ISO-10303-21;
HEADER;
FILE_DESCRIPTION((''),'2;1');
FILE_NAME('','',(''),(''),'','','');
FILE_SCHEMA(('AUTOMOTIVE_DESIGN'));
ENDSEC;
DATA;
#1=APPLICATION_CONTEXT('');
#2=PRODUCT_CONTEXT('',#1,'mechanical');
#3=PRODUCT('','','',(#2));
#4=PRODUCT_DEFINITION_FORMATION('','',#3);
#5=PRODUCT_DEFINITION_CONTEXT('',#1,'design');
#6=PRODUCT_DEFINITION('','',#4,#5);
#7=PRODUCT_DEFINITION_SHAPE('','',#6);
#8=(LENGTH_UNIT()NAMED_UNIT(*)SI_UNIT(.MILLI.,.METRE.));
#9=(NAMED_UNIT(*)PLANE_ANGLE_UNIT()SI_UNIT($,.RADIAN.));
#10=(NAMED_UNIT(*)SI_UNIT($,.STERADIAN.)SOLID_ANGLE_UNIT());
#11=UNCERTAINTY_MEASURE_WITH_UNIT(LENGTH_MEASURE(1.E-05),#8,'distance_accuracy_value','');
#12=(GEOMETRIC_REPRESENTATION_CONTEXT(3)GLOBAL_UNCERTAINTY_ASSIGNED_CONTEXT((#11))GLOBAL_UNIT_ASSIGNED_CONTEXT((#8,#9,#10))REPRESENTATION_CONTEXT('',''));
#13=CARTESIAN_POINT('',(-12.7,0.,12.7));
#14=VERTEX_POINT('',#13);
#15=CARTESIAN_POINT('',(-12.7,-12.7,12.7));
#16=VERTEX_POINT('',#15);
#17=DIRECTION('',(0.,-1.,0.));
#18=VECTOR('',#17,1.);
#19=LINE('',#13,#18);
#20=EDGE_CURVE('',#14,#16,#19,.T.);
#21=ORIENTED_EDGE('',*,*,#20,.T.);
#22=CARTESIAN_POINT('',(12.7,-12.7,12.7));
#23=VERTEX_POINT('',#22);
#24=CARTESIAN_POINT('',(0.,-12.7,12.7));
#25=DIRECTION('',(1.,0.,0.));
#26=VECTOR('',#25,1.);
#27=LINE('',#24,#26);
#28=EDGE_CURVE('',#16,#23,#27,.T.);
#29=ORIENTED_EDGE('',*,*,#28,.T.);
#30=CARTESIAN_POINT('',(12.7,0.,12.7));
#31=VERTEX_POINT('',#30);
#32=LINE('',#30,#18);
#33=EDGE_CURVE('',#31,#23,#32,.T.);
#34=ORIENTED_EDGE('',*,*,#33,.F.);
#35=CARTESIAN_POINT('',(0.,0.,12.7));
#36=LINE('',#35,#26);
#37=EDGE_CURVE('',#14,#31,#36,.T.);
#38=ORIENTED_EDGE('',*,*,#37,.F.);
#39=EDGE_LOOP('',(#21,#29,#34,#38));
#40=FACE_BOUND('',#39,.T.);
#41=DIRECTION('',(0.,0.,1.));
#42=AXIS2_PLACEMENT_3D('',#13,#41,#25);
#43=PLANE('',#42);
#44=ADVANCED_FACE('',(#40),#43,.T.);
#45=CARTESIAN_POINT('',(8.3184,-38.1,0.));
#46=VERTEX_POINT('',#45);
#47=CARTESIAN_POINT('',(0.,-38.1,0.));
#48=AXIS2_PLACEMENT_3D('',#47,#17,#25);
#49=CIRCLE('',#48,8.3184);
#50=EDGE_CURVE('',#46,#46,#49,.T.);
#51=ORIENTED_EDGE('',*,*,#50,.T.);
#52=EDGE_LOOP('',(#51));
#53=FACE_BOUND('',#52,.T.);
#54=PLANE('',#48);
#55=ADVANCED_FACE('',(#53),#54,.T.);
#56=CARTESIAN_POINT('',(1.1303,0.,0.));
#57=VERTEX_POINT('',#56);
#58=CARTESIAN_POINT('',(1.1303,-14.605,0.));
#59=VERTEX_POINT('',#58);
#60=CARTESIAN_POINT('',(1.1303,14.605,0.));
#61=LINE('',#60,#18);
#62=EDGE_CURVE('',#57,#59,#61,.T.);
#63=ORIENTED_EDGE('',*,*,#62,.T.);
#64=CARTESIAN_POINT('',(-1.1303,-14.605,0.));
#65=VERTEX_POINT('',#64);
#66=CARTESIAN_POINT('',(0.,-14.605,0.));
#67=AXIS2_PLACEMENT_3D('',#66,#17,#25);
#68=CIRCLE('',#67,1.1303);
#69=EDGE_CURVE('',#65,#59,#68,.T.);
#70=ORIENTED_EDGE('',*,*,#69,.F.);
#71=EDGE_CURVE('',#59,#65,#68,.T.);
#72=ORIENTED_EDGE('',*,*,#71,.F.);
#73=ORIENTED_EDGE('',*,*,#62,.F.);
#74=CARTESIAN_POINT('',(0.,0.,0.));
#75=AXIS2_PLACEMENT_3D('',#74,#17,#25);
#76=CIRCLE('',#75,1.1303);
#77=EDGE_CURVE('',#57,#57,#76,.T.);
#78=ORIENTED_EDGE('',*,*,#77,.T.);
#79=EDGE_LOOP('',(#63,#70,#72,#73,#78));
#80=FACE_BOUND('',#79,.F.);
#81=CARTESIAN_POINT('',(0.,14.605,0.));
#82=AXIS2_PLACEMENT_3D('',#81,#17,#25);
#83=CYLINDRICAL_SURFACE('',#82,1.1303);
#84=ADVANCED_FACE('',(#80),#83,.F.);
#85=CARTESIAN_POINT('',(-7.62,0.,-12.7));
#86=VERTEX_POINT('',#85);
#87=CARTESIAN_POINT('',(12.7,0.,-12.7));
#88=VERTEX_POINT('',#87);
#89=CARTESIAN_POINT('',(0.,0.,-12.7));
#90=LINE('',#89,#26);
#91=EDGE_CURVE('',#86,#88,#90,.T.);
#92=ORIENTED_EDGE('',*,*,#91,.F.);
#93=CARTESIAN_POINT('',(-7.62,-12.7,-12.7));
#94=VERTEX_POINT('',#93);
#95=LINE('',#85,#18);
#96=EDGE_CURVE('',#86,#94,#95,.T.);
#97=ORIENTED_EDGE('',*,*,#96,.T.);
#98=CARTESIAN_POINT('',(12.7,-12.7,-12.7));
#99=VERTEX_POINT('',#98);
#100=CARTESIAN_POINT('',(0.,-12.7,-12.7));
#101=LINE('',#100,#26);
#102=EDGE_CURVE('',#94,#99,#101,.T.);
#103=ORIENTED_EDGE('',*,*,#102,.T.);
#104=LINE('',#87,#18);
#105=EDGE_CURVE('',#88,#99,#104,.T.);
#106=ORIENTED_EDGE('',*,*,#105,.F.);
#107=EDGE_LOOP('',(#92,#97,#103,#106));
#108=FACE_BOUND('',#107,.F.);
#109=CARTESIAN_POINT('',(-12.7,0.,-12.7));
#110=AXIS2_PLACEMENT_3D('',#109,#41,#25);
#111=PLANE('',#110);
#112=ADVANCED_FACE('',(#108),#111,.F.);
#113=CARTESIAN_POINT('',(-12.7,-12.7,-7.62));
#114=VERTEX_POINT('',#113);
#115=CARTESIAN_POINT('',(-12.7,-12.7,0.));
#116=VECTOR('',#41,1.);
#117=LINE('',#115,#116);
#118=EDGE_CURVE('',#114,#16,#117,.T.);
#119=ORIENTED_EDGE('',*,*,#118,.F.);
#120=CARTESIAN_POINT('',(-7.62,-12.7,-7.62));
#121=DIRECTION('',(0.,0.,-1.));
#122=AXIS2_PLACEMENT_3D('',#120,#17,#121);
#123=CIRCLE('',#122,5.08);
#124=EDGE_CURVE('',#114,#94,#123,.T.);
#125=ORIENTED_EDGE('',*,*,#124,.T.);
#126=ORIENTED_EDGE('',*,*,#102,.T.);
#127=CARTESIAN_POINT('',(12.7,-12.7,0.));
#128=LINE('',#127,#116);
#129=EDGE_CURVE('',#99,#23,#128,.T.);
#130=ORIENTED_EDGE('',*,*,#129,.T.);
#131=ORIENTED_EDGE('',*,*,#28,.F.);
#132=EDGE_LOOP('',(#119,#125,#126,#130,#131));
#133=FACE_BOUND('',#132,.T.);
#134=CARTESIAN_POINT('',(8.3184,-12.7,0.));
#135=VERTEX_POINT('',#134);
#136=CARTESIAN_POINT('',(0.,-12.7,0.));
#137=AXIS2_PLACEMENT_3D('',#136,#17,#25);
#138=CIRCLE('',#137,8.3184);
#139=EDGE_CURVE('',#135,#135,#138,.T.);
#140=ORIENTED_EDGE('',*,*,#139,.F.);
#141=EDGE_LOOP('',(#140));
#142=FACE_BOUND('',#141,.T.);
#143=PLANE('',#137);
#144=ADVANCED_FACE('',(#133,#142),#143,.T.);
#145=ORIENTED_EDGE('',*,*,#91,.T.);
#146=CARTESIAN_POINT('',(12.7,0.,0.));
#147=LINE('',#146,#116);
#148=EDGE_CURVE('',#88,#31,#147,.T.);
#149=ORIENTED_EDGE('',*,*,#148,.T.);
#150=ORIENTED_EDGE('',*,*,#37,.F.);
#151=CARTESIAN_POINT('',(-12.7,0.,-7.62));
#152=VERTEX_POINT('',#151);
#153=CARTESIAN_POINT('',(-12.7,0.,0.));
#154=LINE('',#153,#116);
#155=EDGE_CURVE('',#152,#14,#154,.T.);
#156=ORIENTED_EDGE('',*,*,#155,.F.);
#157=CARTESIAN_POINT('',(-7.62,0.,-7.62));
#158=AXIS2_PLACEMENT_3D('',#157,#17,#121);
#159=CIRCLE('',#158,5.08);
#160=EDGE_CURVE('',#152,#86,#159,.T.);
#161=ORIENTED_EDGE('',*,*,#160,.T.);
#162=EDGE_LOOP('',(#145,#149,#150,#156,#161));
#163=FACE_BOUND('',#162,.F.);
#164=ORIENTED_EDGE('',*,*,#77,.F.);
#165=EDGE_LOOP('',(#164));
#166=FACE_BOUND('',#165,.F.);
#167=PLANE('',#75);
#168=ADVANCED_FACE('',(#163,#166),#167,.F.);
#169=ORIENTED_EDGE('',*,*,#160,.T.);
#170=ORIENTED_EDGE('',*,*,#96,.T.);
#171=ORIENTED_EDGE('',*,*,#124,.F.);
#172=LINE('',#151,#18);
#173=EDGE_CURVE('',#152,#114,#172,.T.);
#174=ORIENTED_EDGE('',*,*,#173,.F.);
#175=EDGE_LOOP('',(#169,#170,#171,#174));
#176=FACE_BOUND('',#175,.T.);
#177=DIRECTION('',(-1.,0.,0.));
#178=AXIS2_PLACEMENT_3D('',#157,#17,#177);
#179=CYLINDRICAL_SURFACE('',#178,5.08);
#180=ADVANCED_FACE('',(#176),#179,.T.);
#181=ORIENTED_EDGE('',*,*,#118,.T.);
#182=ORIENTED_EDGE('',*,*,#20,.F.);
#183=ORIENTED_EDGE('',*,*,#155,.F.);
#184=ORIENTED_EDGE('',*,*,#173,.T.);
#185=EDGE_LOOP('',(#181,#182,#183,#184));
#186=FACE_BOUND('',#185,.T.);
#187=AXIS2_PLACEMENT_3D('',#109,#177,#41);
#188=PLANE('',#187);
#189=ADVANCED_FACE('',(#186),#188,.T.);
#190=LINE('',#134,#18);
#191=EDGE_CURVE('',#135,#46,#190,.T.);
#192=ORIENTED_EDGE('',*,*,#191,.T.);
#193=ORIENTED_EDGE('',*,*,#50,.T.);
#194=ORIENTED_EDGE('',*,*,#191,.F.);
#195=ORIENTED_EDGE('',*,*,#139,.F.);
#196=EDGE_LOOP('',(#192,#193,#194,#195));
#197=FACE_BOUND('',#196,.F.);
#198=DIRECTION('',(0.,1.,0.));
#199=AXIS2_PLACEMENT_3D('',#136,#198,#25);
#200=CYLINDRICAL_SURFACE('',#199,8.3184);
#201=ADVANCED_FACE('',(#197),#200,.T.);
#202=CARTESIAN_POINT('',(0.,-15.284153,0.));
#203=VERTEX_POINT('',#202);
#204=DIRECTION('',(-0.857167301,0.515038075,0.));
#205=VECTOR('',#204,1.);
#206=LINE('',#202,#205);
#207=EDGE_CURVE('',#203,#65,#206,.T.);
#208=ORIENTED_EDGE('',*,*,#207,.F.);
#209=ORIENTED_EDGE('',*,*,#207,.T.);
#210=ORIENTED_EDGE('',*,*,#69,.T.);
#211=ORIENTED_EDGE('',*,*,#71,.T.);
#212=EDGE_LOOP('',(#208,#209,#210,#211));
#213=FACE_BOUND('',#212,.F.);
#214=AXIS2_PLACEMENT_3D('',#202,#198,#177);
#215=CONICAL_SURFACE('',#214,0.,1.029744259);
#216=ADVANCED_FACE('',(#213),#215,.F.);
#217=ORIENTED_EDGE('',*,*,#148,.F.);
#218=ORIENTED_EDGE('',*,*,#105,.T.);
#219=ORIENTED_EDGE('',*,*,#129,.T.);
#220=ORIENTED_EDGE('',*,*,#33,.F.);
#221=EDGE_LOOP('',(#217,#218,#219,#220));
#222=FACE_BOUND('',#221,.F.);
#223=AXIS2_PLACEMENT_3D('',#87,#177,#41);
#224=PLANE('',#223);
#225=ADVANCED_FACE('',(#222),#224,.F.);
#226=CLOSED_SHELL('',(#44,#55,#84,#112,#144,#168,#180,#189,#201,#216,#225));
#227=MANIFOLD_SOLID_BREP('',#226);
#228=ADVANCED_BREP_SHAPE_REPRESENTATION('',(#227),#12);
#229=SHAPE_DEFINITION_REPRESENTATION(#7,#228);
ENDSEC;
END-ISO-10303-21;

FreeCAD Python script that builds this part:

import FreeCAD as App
import Part
import Sketcher
Q = App.Units.Quantity


def edges_at(feature, points):
    """Names of the edges that pass closest to the given points."""
    edges = feature.Shape.Edges
    near = lambda p: min(range(len(edges)), key=lambda i: edges[i].distToShape(Part.Vertex(*p))[0])
    return sorted({f"Edge{near(p) + 1}" for p in points})


def add_polygon(sketch, points):
    """Adds a closed chain of lines whose ends are joined by coincident constraints."""
    first, n = sketch.GeometryCount, len(points)
    for a, b in zip(points, points[1:] + points[:1]):
        sketch.addGeometry(Part.LineSegment(App.Vector(*a, 0), App.Vector(*b, 0)), False)
    for i in range(n):
        sketch.addConstraint(Sketcher.Constraint("Coincident", first + i, 2, first + (i + 1) % n, 1))

doc = App.newDocument("Part")
body = doc.addObject("PartDesign::Body", "Body")

# Sketch on XZ plane
sketch1 = doc.addObject("Sketcher::SketchObject", "Sketch")
body.addObject(sketch1)
sketch1.AttachmentSupport = (doc.XZ_Plane, [""])
sketch1.MapMode = "FlatFace"
add_polygon(sketch1, [(-12.7, 12.7), (-12.7, -12.7), (12.7, -12.7), (12.7, 12.7)])  # lines 0-3
sketch1.addConstraint([
    Sketcher.Constraint("Vertical", 0),
    Sketcher.Constraint("Horizontal", 1),
    Sketcher.Constraint("Vertical", 2),
    Sketcher.Constraint("Horizontal", 3),
    Sketcher.Constraint("Symmetric", 0, 2, 2, 2, -1, 1),
    Sketcher.Constraint("Equal", 3, 0),
    Sketcher.Constraint("DistanceX", 1, 1, 1, 2, Q("1 in")),
])
pad1 = doc.addObject("PartDesign::Pad", "Pad")
body.addObject(pad1)
pad1.Profile = sketch1
pad1.Length = Q("0.5 in")

# Sketch on XZ plane
sketch2 = doc.addObject("Sketcher::SketchObject", "Sketch001")
body.addObject(sketch2)
sketch2.AttachmentSupport = (doc.XZ_Plane, [""])
sketch2.MapMode = "FlatFace"
sketch2.AttachmentOffset = App.Placement(App.Vector(0, 0, 0.5 * 25.4), App.Rotation())
sketch2.addGeometry(Part.Circle(App.Vector(0, 0, 0), App.Vector(0, 0, 1), 8.3184), False)
sketch2.addConstraint([
    Sketcher.Constraint("Coincident", 0, 3, -1, 1),
    Sketcher.Constraint("Diameter", 0, Q("16.6368 mm")),
])
pad2 = doc.addObject("PartDesign::Pad", "Pad001")
body.addObject(pad2)
pad2.Profile = sketch2
pad2.Length = Q("1 in")
doc.recompute()

fillet = doc.addObject("PartDesign::Fillet", "Fillet")
body.addObject(fillet)
fillet.Base = (pad2, edges_at(pad2, [(-12.7, -6.35, -12.7)]))
fillet.Radius = Q("0.2 in")

# Sketch on XZ plane
sketch3 = doc.addObject("Sketcher::SketchObject", "Sketch002")
body.addObject(sketch3)
sketch3.AttachmentSupport = (doc.XZ_Plane, [""])
sketch3.MapMode = "FlatFace"
sketch3.addGeometry(Part.Circle(App.Vector(0, 0, 0), App.Vector(0, 0, 1), 1.1303), False)
sketch3.addConstraint([
    Sketcher.Constraint("Coincident", 0, 3, -1, 1),
    Sketcher.Constraint("Diameter", 0, Q("0.089 in")),
])
doc.recompute()
hole = doc.addObject("PartDesign::Hole", "Hole")
body.addObject(hole)
hole.Profile = sketch3
hole.ThreadType = "None"
hole.Diameter = Q("0.089 in")
hole.DepthType = "Dimension"
hole.Depth = Q("0.575 in")
hole.DrillPoint = "Angled"
hole.DrillPointAngle = 118
hole.Reversed = True

doc.recompute()
